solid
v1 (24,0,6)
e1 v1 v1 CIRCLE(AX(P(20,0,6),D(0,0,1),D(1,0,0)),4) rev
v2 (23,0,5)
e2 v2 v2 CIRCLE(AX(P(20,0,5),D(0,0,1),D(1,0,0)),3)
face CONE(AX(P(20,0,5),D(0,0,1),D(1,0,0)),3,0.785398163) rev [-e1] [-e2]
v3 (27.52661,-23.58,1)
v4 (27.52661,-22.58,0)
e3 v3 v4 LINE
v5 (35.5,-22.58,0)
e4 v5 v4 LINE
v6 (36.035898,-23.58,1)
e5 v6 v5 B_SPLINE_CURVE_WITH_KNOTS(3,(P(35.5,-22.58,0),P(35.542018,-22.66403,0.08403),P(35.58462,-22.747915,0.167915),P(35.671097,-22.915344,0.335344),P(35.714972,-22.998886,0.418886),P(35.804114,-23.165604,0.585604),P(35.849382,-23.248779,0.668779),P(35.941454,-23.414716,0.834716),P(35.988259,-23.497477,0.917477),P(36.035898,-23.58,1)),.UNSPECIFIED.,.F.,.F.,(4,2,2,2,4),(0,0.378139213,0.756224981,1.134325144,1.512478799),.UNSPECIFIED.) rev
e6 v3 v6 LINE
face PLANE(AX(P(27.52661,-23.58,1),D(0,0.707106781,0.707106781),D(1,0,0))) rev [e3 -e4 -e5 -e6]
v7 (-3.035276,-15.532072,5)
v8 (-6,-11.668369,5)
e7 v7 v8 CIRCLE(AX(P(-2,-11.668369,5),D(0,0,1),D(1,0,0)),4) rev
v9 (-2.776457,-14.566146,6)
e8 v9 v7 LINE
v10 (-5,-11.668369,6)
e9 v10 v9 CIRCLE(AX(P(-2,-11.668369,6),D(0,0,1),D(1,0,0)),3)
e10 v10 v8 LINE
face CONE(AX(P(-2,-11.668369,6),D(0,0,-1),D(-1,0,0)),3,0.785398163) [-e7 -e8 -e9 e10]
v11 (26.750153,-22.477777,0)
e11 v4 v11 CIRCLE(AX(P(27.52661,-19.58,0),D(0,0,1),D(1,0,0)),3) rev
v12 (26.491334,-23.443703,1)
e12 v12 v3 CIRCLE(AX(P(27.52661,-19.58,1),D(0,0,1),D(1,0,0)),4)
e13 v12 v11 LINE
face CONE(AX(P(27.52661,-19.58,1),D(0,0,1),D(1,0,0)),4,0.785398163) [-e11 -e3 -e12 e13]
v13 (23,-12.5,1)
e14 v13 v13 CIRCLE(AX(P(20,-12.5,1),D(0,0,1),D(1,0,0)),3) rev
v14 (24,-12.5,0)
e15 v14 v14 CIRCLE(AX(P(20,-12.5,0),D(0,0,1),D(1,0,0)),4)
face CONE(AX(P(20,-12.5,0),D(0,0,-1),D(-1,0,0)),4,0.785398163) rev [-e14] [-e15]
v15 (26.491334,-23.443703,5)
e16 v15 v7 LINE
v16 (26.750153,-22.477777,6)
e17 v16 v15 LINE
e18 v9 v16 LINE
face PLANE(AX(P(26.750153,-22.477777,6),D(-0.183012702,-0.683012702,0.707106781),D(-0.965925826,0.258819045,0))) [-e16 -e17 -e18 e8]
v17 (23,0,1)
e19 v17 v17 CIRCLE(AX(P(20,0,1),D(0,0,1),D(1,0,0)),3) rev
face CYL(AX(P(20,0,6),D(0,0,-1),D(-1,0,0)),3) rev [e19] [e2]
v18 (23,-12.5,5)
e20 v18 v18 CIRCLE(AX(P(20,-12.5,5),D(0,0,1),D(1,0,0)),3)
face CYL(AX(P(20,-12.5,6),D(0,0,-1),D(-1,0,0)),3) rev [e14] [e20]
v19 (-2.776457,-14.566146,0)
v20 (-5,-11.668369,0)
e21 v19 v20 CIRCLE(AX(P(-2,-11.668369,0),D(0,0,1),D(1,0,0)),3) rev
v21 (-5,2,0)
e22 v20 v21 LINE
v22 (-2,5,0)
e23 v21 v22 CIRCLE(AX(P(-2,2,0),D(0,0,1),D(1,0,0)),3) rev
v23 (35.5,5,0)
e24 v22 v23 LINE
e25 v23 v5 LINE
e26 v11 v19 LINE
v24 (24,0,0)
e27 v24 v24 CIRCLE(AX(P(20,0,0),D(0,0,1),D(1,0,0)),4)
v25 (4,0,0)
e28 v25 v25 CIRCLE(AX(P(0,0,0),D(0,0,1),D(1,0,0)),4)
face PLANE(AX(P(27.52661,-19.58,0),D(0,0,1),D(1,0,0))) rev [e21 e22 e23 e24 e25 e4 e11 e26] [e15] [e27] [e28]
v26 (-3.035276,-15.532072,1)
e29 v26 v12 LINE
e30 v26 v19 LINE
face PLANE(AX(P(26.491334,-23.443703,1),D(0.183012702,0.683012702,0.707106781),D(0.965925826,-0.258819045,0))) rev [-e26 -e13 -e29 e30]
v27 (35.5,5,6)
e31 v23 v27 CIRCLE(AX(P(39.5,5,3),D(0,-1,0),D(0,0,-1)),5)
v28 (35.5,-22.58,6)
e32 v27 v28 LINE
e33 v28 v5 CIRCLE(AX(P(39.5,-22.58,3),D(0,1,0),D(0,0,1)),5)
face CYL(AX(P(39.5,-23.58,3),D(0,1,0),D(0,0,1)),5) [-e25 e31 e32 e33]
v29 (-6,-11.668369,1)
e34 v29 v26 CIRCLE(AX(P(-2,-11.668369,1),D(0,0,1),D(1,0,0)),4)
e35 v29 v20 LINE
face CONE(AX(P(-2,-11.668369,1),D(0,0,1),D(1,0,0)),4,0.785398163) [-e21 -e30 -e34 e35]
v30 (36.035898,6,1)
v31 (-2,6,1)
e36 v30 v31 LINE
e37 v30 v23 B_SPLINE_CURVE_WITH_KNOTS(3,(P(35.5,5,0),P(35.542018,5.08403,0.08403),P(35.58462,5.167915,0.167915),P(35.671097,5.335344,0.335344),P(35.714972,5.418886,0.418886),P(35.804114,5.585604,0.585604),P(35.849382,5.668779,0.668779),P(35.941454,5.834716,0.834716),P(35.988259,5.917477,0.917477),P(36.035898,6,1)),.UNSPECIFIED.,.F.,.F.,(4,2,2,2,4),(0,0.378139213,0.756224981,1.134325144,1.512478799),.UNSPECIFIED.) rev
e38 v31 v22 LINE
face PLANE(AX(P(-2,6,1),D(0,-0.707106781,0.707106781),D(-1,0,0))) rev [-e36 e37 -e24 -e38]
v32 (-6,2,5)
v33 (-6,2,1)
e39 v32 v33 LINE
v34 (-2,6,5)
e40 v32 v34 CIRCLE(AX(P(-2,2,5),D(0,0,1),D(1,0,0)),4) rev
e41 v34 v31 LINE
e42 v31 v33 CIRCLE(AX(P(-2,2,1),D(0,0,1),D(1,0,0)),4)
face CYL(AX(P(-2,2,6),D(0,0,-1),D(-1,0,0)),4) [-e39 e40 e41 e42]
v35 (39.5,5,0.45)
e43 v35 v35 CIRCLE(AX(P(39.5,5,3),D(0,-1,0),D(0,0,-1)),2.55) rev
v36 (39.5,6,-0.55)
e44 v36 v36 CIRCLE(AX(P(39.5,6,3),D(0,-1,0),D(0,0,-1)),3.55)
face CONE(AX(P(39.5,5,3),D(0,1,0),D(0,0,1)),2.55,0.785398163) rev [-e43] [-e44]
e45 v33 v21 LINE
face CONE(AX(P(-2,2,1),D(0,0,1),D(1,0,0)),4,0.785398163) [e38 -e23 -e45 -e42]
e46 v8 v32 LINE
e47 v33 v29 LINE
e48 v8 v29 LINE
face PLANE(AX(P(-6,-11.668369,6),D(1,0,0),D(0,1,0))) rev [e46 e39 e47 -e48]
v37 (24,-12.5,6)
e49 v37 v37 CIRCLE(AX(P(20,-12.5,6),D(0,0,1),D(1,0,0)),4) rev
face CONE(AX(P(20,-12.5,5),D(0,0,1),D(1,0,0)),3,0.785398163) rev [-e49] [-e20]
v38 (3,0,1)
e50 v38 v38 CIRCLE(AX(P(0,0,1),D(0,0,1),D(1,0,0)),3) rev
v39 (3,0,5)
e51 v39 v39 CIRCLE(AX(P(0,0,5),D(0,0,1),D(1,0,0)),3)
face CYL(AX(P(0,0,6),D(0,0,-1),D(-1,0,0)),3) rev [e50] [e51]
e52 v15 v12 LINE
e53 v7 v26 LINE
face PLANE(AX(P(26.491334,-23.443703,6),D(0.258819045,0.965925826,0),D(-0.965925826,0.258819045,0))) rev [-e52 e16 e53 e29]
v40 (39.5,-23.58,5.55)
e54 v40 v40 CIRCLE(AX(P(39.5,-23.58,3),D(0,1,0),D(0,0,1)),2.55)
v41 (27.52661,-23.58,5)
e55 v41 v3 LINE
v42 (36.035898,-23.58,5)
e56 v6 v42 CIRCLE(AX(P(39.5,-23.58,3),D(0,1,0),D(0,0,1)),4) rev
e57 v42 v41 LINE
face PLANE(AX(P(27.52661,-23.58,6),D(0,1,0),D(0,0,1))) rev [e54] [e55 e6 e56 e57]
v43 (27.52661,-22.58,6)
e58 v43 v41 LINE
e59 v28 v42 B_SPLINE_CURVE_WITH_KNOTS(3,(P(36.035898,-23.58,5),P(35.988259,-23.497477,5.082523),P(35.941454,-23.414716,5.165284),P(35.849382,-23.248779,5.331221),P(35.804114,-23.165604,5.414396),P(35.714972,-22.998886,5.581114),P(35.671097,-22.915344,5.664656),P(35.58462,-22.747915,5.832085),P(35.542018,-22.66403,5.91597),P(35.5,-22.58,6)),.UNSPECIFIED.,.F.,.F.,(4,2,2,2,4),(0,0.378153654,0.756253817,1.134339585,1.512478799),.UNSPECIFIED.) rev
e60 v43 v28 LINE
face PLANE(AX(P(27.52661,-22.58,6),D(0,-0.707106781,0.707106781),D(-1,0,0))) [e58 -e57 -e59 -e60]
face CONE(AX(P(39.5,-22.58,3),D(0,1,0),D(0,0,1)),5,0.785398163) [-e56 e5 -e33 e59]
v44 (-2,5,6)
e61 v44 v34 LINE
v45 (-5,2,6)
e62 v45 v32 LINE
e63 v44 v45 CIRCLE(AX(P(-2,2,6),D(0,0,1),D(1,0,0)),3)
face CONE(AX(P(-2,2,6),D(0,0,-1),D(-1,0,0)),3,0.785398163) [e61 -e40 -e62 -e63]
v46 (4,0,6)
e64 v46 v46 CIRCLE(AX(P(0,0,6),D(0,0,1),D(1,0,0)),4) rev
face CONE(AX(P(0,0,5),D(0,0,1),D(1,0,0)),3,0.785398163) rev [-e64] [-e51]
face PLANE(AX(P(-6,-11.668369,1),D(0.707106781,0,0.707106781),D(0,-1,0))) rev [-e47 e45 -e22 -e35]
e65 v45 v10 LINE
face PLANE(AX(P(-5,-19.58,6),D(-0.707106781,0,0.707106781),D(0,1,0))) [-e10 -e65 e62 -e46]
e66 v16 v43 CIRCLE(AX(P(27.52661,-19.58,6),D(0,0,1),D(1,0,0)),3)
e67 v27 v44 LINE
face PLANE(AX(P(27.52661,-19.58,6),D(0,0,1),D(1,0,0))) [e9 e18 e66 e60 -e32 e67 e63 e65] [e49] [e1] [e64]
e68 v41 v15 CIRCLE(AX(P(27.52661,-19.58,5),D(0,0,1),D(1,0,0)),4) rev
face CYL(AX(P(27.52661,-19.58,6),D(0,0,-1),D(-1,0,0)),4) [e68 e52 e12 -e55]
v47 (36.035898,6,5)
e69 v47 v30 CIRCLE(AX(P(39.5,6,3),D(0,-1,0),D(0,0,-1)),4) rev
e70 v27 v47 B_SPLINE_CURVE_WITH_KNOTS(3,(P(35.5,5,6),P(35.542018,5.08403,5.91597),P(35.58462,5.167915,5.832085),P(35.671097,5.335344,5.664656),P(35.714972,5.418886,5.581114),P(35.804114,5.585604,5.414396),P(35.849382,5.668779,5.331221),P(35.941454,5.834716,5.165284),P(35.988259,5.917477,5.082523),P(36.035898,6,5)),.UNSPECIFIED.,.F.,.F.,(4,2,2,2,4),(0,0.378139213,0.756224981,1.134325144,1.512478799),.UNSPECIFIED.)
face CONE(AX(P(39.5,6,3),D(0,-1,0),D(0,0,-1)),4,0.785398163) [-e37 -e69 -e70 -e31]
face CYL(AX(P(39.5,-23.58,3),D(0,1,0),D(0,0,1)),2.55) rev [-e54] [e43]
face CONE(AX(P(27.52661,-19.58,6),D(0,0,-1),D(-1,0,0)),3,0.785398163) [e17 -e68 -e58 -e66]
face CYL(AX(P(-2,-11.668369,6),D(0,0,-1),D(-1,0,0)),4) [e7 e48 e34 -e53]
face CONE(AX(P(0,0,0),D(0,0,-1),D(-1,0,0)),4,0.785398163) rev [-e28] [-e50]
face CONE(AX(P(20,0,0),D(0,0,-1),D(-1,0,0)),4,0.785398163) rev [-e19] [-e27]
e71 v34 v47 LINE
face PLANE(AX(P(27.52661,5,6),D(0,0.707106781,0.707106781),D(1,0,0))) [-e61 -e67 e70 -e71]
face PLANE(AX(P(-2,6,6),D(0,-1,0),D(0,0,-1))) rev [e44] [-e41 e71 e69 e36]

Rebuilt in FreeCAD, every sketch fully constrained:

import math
import FreeCAD as App
import Part
import Sketcher

V = App.Vector
Q = App.Units.Quantity


def edges_at(feature, points):
    """Names of the edges that pass closest to the given points."""
    edges = feature.Shape.Edges
    near = lambda p: min(range(len(edges)), key=lambda i: edges[i].distToShape(Part.Vertex(*p))[0])
    return sorted({f"Edge{near(p) + 1}" for p in points})

doc = App.newDocument("Part")
body = doc.addObject("PartDesign::Body", "Body")

# Sketch on XY plane
sketch1 = body.newObject("Sketcher::SketchObject", "Sketch")
sketch1.AttachmentSupport = (doc.getObject("XY_Plane"), [""])
sketch1.MapMode = "FlatFace"
sketch1.addGeometry([
    Part.LineSegment(V(-3.035276, -15.532072, 0), V(26.491334, -23.443703, 0)),  # 0
    Part.ArcOfCircle(Part.Circle(V(27.52661, -19.58, 0), V(0, 0, 1), 4), math.radians(-105), math.radians(-90)),  # 1
    Part.LineSegment(V(27.52661, -23.58, 0), V(39.5, -23.58, 0)),  # 2
    Part.LineSegment(V(39.5, -23.58, 0), V(39.5, 6, 0)),  # 3
    Part.LineSegment(V(39.5, 6, 0), V(-2, 6, 0)),  # 4
    Part.ArcOfCircle(Part.Circle(V(-2, 2, 0), V(0, 0, 1), 4), math.radians(90), math.radians(180)),  # 5
    Part.LineSegment(V(-6, 2, 0), V(-6, -11.668369, 0)),  # 6
    Part.ArcOfCircle(Part.Circle(V(-2, -11.668369, 0), V(0, 0, 1), 4), math.radians(180), math.radians(255)),  # 7
    Part.Circle(V(20, -12.5, 0), V(0, 0, 1), 3),  # 8
    Part.Circle(V(20, 0, 0), V(0, 0, 1), 3),  # 9
    Part.Circle(V(0, 0, 0), V(0, 0, 1), 3),  # 10
], False)
sketch1.addConstraint([
    Sketcher.Constraint("Tangent", 0, 2, 1, 1),
    Sketcher.Constraint("Tangent", 1, 2, 2, 1),
    Sketcher.Constraint("Coincident", 2, 2, 3, 1),
    Sketcher.Constraint("Coincident", 3, 2, 4, 1),
    Sketcher.Constraint("Tangent", 4, 2, 5, 1),
    Sketcher.Constraint("Tangent", 5, 2, 6, 1),
    Sketcher.Constraint("Tangent", 6, 2, 7, 1),
    Sketcher.Constraint("Tangent", 7, 2, 0, 1),
    Sketcher.Constraint("Horizontal", 2),
    Sketcher.Constraint("Vertical", 3),
    Sketcher.Constraint("Horizontal", 4),
    Sketcher.Constraint("Vertical", 6),
    Sketcher.Constraint("Coincident", 10, 3, -1, 1),
    Sketcher.Constraint("Equal", 1, 5),
    Sketcher.Constraint("Equal", 5, 7),
    Sketcher.Constraint("Equal", 8, 9),
    Sketcher.Constraint("Equal", 9, 10),
    Sketcher.Constraint("PointOnObject", 9, 3, -1),
    Sketcher.Constraint("Vertical", 8, 3, 9, 3),
    Sketcher.Constraint("Diameter", 8, 6.0),
    Sketcher.Constraint("Radius", 1, 4.0),
    Sketcher.Constraint("Angle", 0, Q("-15 deg")),
    Sketcher.Constraint("DistanceX", 4, 2, 4, 1, 41.5),
    Sketcher.Constraint("DistanceX", 5, 3, -1, 1, 2.0),
    Sketcher.Constraint("DistanceY", -1, 1, 5, 3, 2.0),
    Sketcher.Constraint("DistanceX", -1, 1, 8, 3, 20.0),
    Sketcher.Constraint("DistanceY", 3, 1, 3, 2, 29.58),
    Sketcher.Constraint("DistanceY", 8, 3, -1, 1, 12.5),
    Sketcher.Constraint("DistanceX", 2, 1, 2, 2, 11.97339),
])
pad1 = body.newObject("PartDesign::Pad", "Pad")
pad1.Profile = sketch1
pad1.Length = 6

# Sketch on XZ plane
sketch2 = body.newObject("Sketcher::SketchObject", "Sketch001")
sketch2.AttachmentSupport = (doc.getObject("XZ_Plane"), [""])
sketch2.MapMode = "FlatFace"
sketch2.AttachmentOffset = App.Placement(V(0, 0, -6), App.Rotation())
sketch2.addGeometry(Part.Circle(V(39.5, 3, 0), V(0, 0, 1), 5), False)
sketch2.addConstraint([
    Sketcher.Constraint("Diameter", 0, 10.0),
    Sketcher.Constraint("DistanceY", -1, 1, 0, 3, 3.0),
    Sketcher.Constraint("DistanceX", -1, 1, 0, 3, 39.5),
])
pad2 = body.newObject("PartDesign::Pad", "Pad001")
pad2.Profile = sketch2
pad2.Type = "UpToLast"

# Sketch on XZ plane
sketch3 = body.newObject("Sketcher::SketchObject", "Sketch002")
sketch3.AttachmentSupport = (doc.getObject("XZ_Plane"), [""])
sketch3.MapMode = "FlatFace"
sketch3.AttachmentOffset = App.Placement(V(0, 0, -6), App.Rotation())
sketch3.addGeometry(Part.Circle(V(39.5, 3, 0), V(0, 0, 1), 2.55), False)
sketch3.addConstraint([
    Sketcher.Constraint("Diameter", 0, 5.1),
    Sketcher.Constraint("DistanceY", -1, 1, 0, 3, 3.0),
    Sketcher.Constraint("DistanceX", -1, 1, 0, 3, 39.5),
])
pocket1 = body.newObject("PartDesign::Pocket", "Pocket")
pocket1.Profile = sketch3
pocket1.Type = "ThroughAll"
pocket1.Reversed = True
doc.recompute()

chamfer = body.newObject("PartDesign::Chamfer", "Chamfer")
chamfer.Base = (pocket1, edges_at(pocket1, [
    (31.513, -23.58, 0),
    (27.005, -23.546, 0),
    (-4.828, 4.828, 6),
    (-3, 0, 0),
    (-3, 0, 6),
    (-6, -4.834, 6),
    (17, 0, 0),
    (17, 0, 6),
    (-5.173, -14.103, 6),
    (17, -12.5, 0),
    (17, -12.5, 6),
    (11.728, -19.488, 6),
    (16.75, 6, 0),
    (16.75, 6, 6),
    (44.5, -23.58, 3),
    (44.5, 6, 3),
    (27.005, -23.546, 6),
    (39.5, 6, 0.45),
    (11.728, -19.488, 0),
    (31.513, -23.58, 6),
    (-5.173, -14.103, 0),
    (-6, -4.834, 0),
    (-4.828, 4.828, 0),
]))
chamfer.Size = 1

doc.recompute()
